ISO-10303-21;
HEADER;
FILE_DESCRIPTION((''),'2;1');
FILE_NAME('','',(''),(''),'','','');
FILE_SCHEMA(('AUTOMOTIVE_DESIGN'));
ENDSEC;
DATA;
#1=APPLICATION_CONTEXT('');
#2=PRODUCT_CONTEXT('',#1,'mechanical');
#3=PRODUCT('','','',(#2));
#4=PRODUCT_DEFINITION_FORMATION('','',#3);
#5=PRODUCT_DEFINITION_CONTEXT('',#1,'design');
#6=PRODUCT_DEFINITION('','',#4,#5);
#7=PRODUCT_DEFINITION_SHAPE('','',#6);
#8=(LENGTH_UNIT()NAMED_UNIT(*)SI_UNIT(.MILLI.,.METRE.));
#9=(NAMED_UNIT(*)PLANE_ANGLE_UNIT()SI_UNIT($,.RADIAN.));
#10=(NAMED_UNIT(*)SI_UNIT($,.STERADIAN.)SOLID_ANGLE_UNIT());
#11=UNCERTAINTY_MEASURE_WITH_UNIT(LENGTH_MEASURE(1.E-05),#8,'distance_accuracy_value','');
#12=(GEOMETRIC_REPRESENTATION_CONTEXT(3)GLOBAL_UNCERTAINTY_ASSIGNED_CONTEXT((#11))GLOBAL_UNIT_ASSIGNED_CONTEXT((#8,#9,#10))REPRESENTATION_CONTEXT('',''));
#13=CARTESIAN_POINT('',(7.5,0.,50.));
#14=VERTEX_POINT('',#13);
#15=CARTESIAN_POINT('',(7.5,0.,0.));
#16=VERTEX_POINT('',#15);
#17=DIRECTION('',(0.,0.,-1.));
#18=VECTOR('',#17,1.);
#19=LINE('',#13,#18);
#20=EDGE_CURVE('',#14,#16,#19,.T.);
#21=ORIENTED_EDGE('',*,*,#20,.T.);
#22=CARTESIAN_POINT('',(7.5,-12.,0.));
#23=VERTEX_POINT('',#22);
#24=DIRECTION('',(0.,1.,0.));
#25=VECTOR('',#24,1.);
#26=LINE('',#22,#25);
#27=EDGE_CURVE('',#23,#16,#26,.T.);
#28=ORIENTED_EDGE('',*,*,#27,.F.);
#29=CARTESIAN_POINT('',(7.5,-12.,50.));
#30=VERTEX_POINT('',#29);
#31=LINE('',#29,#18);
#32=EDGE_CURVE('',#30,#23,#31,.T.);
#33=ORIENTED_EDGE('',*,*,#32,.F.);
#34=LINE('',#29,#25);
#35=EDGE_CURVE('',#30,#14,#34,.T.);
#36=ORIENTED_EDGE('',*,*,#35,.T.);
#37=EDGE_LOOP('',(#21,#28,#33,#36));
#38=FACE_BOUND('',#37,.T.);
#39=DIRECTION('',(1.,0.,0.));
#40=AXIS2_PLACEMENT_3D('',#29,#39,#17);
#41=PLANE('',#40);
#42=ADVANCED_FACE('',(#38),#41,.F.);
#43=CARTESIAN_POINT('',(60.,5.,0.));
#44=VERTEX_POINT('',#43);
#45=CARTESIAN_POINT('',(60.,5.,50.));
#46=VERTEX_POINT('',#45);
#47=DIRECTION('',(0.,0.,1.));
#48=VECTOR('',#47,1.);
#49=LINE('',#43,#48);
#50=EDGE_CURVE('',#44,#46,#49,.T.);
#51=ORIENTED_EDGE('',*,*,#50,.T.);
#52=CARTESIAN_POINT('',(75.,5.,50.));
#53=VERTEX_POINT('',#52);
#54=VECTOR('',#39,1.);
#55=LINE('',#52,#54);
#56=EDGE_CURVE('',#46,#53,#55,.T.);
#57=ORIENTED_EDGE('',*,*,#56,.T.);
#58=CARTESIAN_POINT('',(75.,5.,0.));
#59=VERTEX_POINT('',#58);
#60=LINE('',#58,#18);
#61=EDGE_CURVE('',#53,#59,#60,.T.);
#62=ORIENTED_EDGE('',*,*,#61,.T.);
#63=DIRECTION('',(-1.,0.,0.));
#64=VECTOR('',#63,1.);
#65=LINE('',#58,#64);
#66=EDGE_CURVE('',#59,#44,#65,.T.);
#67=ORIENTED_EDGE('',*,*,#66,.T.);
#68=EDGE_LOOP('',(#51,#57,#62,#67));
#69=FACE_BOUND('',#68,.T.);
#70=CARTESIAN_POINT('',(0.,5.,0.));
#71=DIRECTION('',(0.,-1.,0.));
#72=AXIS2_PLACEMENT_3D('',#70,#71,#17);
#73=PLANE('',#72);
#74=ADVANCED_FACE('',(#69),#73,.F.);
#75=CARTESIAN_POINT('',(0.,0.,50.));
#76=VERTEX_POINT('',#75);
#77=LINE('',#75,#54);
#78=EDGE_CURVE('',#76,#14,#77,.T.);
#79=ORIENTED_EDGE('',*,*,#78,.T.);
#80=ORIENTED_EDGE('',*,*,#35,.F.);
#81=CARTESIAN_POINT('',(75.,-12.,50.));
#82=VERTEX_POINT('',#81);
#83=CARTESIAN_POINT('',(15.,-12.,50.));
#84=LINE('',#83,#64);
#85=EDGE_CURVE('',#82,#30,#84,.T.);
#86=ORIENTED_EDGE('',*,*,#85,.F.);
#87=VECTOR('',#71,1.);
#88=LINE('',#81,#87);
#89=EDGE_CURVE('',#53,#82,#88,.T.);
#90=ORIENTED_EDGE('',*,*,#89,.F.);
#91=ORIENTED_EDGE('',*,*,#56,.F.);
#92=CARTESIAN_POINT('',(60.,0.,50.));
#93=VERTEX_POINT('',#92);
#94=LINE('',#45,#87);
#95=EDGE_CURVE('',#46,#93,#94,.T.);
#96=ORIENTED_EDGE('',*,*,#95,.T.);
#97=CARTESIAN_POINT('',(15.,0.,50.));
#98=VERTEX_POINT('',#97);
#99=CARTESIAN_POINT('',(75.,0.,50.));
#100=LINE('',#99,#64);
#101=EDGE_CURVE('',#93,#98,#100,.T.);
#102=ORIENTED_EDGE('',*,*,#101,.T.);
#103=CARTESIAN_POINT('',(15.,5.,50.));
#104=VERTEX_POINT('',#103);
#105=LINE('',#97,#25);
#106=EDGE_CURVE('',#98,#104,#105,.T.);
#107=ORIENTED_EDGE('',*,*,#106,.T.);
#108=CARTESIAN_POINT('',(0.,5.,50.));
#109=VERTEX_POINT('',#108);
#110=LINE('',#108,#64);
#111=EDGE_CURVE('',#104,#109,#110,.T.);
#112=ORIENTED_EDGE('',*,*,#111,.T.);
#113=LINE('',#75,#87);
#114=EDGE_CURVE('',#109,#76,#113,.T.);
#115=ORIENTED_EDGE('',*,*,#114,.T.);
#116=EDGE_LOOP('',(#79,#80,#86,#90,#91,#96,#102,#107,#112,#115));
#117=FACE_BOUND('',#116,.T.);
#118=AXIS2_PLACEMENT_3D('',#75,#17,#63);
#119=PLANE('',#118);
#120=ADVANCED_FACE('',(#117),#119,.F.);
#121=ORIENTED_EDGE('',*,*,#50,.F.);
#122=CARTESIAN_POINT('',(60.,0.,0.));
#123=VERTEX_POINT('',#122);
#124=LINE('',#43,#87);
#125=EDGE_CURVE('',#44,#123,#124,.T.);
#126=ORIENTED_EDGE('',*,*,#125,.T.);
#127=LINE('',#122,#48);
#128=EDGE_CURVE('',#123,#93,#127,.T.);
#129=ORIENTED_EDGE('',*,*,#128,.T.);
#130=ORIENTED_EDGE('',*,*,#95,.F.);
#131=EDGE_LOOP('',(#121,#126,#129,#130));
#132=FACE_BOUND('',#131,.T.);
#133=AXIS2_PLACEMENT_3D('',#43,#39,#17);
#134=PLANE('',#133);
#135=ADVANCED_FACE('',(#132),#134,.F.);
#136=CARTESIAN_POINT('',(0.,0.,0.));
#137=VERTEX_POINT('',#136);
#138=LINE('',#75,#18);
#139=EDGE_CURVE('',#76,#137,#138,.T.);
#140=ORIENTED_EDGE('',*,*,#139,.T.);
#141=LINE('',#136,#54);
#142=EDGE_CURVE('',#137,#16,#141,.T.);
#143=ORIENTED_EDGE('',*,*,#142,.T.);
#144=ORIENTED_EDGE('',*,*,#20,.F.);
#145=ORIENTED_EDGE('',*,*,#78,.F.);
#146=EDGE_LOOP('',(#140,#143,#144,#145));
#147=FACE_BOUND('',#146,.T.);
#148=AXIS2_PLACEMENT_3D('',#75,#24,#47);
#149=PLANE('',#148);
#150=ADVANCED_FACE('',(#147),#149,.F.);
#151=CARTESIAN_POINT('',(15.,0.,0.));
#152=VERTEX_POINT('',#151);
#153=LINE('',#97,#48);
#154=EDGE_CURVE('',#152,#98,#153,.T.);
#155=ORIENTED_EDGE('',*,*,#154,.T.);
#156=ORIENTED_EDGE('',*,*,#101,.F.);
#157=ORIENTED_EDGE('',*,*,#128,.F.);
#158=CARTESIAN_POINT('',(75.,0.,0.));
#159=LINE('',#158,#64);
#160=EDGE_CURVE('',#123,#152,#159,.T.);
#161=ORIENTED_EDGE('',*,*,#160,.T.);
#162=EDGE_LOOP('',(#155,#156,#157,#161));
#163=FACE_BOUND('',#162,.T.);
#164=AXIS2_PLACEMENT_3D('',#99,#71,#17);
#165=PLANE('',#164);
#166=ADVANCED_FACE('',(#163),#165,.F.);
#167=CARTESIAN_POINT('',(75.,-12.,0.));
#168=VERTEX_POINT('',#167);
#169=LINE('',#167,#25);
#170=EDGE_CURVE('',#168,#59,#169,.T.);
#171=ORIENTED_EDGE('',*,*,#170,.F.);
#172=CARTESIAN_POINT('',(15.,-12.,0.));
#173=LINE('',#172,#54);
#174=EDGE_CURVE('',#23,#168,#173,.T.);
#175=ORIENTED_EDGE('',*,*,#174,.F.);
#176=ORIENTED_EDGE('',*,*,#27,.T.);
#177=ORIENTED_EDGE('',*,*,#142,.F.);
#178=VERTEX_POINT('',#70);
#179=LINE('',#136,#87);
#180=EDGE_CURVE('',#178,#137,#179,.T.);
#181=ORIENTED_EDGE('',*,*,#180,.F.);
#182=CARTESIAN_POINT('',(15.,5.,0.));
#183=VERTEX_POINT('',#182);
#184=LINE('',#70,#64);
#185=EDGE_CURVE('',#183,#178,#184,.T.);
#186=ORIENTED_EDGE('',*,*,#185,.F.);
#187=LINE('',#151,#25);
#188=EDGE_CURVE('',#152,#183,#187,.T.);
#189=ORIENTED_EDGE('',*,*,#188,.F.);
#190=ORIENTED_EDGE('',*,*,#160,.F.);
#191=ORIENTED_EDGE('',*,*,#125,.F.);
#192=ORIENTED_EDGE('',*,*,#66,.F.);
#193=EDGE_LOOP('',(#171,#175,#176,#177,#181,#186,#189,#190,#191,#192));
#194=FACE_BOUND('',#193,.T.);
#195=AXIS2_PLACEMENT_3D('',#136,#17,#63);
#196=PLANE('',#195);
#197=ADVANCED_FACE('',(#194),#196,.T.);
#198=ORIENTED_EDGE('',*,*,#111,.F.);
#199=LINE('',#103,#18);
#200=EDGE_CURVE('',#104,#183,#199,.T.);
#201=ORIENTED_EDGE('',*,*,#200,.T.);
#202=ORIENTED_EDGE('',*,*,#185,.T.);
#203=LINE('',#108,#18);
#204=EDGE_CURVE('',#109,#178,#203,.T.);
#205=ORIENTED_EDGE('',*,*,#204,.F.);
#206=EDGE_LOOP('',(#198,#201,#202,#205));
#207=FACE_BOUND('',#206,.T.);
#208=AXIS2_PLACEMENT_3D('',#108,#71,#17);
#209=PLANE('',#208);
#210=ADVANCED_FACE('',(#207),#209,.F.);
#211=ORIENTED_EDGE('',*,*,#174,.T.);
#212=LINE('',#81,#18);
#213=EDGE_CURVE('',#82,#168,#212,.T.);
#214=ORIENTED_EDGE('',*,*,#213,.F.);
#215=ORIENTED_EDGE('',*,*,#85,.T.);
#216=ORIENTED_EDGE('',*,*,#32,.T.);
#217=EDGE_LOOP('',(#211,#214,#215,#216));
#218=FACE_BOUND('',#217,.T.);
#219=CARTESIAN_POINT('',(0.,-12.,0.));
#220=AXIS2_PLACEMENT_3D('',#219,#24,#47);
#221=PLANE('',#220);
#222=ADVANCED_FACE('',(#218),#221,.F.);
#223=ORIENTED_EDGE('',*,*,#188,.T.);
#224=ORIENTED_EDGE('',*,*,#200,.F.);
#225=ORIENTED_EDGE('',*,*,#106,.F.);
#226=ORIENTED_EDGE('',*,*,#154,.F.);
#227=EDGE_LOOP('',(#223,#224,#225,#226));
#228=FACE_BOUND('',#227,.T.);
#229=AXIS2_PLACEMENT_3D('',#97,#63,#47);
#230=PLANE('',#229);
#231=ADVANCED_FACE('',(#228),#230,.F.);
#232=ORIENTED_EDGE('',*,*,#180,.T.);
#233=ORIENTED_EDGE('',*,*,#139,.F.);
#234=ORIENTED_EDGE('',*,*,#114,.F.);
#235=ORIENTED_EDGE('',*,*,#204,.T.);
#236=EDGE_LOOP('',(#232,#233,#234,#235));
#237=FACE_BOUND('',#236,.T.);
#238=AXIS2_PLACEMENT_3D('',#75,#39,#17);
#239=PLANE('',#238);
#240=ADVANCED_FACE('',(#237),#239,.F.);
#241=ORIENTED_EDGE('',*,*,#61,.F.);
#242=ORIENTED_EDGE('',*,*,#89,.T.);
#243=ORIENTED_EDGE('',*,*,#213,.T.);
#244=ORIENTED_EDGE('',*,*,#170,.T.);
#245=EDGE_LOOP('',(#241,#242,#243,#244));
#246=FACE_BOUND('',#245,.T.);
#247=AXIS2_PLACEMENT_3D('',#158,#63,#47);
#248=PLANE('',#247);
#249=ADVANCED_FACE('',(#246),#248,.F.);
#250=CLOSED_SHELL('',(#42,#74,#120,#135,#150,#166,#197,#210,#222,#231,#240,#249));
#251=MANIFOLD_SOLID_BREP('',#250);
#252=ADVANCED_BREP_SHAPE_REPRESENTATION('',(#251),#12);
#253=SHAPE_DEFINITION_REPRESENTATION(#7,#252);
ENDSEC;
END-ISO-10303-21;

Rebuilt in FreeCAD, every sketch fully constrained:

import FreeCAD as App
import Part
import Sketcher
from FreeCAD import Vector
Q = App.Units.Quantity

doc = App.newDocument("Part")
body = doc.addObject("PartDesign::Body", "Body")

# Sketch on XY plane
sketch1 = doc.addObject("Sketcher::SketchObject", "Sketch")
body.addObject(sketch1)
sketch1.AttachmentSupport = (doc.XY_Plane, [""])
sketch1.MapMode = "FlatFace"
sketch1.addGeometry(Part.LineSegment(Vector(0, 5, 0), Vector(0, 0, 0)), False)
sketch1.addGeometry(Part.LineSegment(Vector(0, 0, 0), Vector(15, 0, 0)), False)
sketch1.addGeometry(Part.LineSegment(Vector(15, 0, 0), Vector(15, 5, 0)), False)
sketch1.addGeometry(Part.LineSegment(Vector(15, 5, 0), Vector(0, 5, 0)), False)
sketch1.addConstraint(Sketcher.Constraint("Coincident", 0, 2, 1, 1))
sketch1.addConstraint(Sketcher.Constraint("Coincident", 1, 2, 2, 1))
sketch1.addConstraint(Sketcher.Constraint("Coincident", 2, 2, 3, 1))
sketch1.addConstraint(Sketcher.Constraint("Coincident", 3, 2, 0, 1))
sketch1.addConstraint(Sketcher.Constraint("Vertical", 0))
sketch1.addConstraint(Sketcher.Constraint("Horizontal", 1))
sketch1.addConstraint(Sketcher.Constraint("Vertical", 2))
sketch1.addConstraint(Sketcher.Constraint("Horizontal", 3))
sketch1.addConstraint(Sketcher.Constraint("Coincident", 0, 2, -1, 1))
sketch1.addConstraint(Sketcher.Constraint("DistanceX", 1, 1, 1, 2, Q("15 mm")))
sketch1.addConstraint(Sketcher.Constraint("DistanceY", 0, 2, 0, 1, Q("5 mm")))
pad1 = doc.addObject("PartDesign::Pad", "Pad")
body.addObject(pad1)
pad1.Profile = sketch1
pad1.Length = 50

# Sketch on XZ plane
sketch2 = doc.addObject("Sketcher::SketchObject", "Sketch001")
body.addObject(sketch2)
sketch2.AttachmentSupport = (doc.XZ_Plane, [""])
sketch2.MapMode = "FlatFace"
sketch2.addGeometry(Part.LineSegment(Vector(8, 50, 0), Vector(8, 0, 0)), False)
sketch2.addGeometry(Part.LineSegment(Vector(8, 0, 0), Vector(15, 0, 0)), False)
sketch2.addGeometry(Part.LineSegment(Vector(15, 0, 0), Vector(15, 50, 0)), False)
sketch2.addGeometry(Part.LineSegment(Vector(15, 50, 0), Vector(8, 50, 0)), False)
sketch2.addConstraint(Sketcher.Constraint("Coincident", 0, 2, 1, 1))
sketch2.addConstraint(Sketcher.Constraint("Coincident", 1, 2, 2, 1))
sketch2.addConstraint(Sketcher.Constraint("Coincident", 2, 2, 3, 1))
sketch2.addConstraint(Sketcher.Constraint("Coincident", 3, 2, 0, 1))
sketch2.addConstraint(Sketcher.Constraint("Vertical", 0))
sketch2.addConstraint(Sketcher.Constraint("Horizontal", 1))
sketch2.addConstraint(Sketcher.Constraint("Vertical", 2))
sketch2.addConstraint(Sketcher.Constraint("Horizontal", 3))
sketch2.addConstraint(Sketcher.Constraint("PointOnObject", 0, 2, -1))
sketch2.addConstraint(Sketcher.Constraint("DistanceY", 0, 2, 0, 1, Q("50 mm")))
sketch2.addConstraint(Sketcher.Constraint("DistanceX", 1, 1, 1, 2, Q("7.5 mm")))
sketch2.addConstraint(Sketcher.Constraint("DistanceX", -1, 1, 1, 2, Q("15 mm")))
pad2 = doc.addObject("PartDesign::Pad", "Pad001")
body.addObject(pad2)
pad2.Profile = sketch2
pad2.Length = 12

# Sketch on YZ plane
sketch3 = doc.addObject("Sketcher::SketchObject", "Sketch002")
body.addObject(sketch3)
sketch3.AttachmentSupport = (doc.YZ_Plane, [""])
sketch3.MapMode = "FlatFace"
sketch3.AttachmentOffset = App.Placement(Vector(0, 0, 15), App.Rotation())
sketch3.addGeometry(Part.LineSegment(Vector(0, 50, 0), Vector(-12, 50, 0)), False)
sketch3.addGeometry(Part.LineSegment(Vector(-12, 50, 0), Vector(-12, 0, 0)), False)
sketch3.addGeometry(Part.LineSegment(Vector(-12, 0, 0), Vector(0, 0, 0)), False)
sketch3.addGeometry(Part.LineSegment(Vector(0, 0, 0), Vector(0, 50, 0)), False)
sketch3.addConstraint(Sketcher.Constraint("Coincident", 0, 2, 1, 1))
sketch3.addConstraint(Sketcher.Constraint("Coincident", 1, 2, 2, 1))
sketch3.addConstraint(Sketcher.Constraint("Coincident", 2, 2, 3, 1))
sketch3.addConstraint(Sketcher.Constraint("Coincident", 3, 2, 0, 1))
sketch3.addConstraint(Sketcher.Constraint("Horizontal", 0))
sketch3.addConstraint(Sketcher.Constraint("Vertical", 1))
sketch3.addConstraint(Sketcher.Constraint("Horizontal", 2))
sketch3.addConstraint(Sketcher.Constraint("Vertical", 3))
sketch3.addConstraint(Sketcher.Constraint("Coincident", 2, 2, -1, 1))
sketch3.addConstraint(Sketcher.Constraint("DistanceX", 0, 2, 0, 1, Q("12 mm")))
sketch3.addConstraint(Sketcher.Constraint("DistanceY", 1, 2, 1, 1, Q("50 mm")))
pad3 = doc.addObject("PartDesign::Pad", "Pad002")
body.addObject(pad3)
pad3.Profile = sketch3
pad3.Length = 60

# Sketch on XZ plane
sketch4 = doc.addObject("Sketcher::SketchObject", "Sketch003")
body.addObject(sketch4)
sketch4.AttachmentSupport = (doc.XZ_Plane, [""])
sketch4.MapMode = "FlatFace"
sketch4.addGeometry(Part.LineSegment(Vector(60, 0, 0), Vector(60, 50, 0)), False)
sketch4.addGeometry(Part.LineSegment(Vector(60, 50, 0), Vector(75, 50, 0)), False)
sketch4.addGeometry(Part.LineSegment(Vector(75, 50, 0), Vector(75, 0, 0)), False)
sketch4.addGeometry(Part.LineSegment(Vector(75, 0, 0), Vector(60, 0, 0)), False)
sketch4.addConstraint(Sketcher.Constraint("Coincident", 0, 2, 1, 1))
sketch4.addConstraint(Sketcher.Constraint("Coincident", 1, 2, 2, 1))
sketch4.addConstraint(Sketcher.Constraint("Coincident", 2, 2, 3, 1))
sketch4.addConstraint(Sketcher.Constraint("Coincident", 3, 2, 0, 1))
sketch4.addConstraint(Sketcher.Constraint("Vertical", 0))
sketch4.addConstraint(Sketcher.Constraint("Horizontal", 1))
sketch4.addConstraint(Sketcher.Constraint("Vertical", 2))
sketch4.addConstraint(Sketcher.Constraint("Horizontal", 3))
sketch4.addConstraint(Sketcher.Constraint("PointOnObject", 2, 2, -1))
sketch4.addConstraint(Sketcher.Constraint("DistanceX", 1, 1, 1, 2, Q("15 mm")))
sketch4.addConstraint(Sketcher.Constraint("DistanceY", 0, 1, 0, 2, Q("50 mm")))
sketch4.addConstraint(Sketcher.Constraint("DistanceX", -1, 1, 0, 2, Q("60 mm")))
pad4 = doc.addObject("PartDesign::Pad", "Pad003")
body.addObject(pad4)
pad4.Profile = sketch4
pad4.Length = 5
pad4.Reversed = True

doc.recompute()
